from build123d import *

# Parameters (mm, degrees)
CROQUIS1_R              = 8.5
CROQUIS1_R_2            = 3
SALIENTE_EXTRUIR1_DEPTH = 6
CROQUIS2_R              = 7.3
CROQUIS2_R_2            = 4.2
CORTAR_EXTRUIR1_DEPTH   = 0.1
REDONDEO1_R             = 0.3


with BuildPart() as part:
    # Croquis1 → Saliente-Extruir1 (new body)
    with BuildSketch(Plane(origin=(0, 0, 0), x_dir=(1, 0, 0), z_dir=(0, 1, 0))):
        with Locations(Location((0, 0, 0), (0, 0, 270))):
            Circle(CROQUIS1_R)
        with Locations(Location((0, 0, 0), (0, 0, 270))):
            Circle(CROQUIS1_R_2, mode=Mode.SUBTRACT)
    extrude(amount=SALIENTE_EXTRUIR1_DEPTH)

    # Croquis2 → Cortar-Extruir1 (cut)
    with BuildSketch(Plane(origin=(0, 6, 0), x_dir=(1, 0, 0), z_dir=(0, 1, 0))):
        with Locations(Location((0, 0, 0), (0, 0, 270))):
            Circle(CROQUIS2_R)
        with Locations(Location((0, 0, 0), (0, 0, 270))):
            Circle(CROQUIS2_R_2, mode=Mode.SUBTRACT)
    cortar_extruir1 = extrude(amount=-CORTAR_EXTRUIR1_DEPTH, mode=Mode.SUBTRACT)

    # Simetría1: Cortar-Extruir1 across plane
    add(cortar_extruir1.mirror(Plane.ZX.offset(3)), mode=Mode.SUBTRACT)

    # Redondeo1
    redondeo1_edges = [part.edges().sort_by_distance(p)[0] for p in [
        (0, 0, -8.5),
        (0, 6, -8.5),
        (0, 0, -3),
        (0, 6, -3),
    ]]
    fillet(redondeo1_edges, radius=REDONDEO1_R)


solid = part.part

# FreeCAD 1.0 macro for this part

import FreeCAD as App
import Part
import Sketcher


def edges_at(feature, points):
    """Names of the edges that pass closest to the given points."""
    edges = feature.Shape.Edges
    near = lambda p: min(range(len(edges)), key=lambda i: edges[i].distToShape(Part.Vertex(*p))[0])
    return sorted({f"Edge{near(p) + 1}" for p in points})

doc = App.newDocument("Part")
body = doc.addObject("PartDesign::Body", "Body")

sketch1 = body.newObject("Sketcher::SketchObject", "Sketch")
sketch1.AttachmentSupport = (doc.getObject("XZ_Plane"), [""])
sketch1.MapMode = "FlatFace"
sketch1.addGeometry([
    Part.Circle(App.Vector(0, 0, 0), App.Vector(0, 0, 1), 8.5),
    Part.Circle(App.Vector(0, 0, 0), App.Vector(0, 0, 1), 3),
], False)
sketch1.addConstraint([
    Sketcher.Constraint("Coincident", 0, 3, -1, 1),
    Sketcher.Constraint("Coincident", 1, 3, -1, 1),
    Sketcher.Constraint("Diameter", 0, 17.0),
    Sketcher.Constraint("Diameter", 1, 6.0),
])
pad1 = body.newObject("PartDesign::Pad", "Pad")
pad1.Profile = sketch1
pad1.Length = 6
pad1.Reversed = True

sketch2 = body.newObject("Sketcher::SketchObject", "Sketch001")
sketch2.AttachmentSupport = (doc.getObject("XZ_Plane"), [""])
sketch2.MapMode = "FlatFace"
sketch2.AttachmentOffset = App.Placement(App.Vector(0, 0, -6), App.Rotation())
sketch2.addGeometry([
    Part.Circle(App.Vector(0, 0, 0), App.Vector(0, 0, 1), 7.3),
    Part.Circle(App.Vector(0, 0, 0), App.Vector(0, 0, 1), 4.2),
], False)
sketch2.addConstraint([
    Sketcher.Constraint("Coincident", 0, 3, -1, 1),
    Sketcher.Constraint("Coincident", 1, 3, -1, 1),
    Sketcher.Constraint("Diameter", 0, 14.6),
    Sketcher.Constraint("Diameter", 1, 8.4),
])
pocket1 = body.newObject("PartDesign::Pocket", "Pocket")
pocket1.Profile = sketch2
pocket1.Length = 0.1
pocket1.Reversed = True
doc.recompute()

datumplane = body.newObject("PartDesign::Plane", "DatumPlane")
datumplane.AttachmentSupport = (doc.getObject("XZ_Plane"), [""])
datumplane.MapMode = "FlatFace"
datumplane.AttachmentOffset = App.Placement(App.Vector(0, 0, -3), App.Rotation())
mirrored = body.newObject("PartDesign::Mirrored", "Mirrored")
mirrored.Originals = [pocket1]
mirrored.MirrorPlane = (datumplane, [""])
body.Tip = mirrored
doc.recompute()

fillet = body.newObject("PartDesign::Fillet", "Fillet")
fillet.Base = (mirrored, edges_at(mirrored, [
    (0, 0, -8.5),
    (0, 6, -8.5),
    (0, 0, -3),
    (0, 6, -3),
]))
fillet.Radius = 0.3

doc.recompute()
